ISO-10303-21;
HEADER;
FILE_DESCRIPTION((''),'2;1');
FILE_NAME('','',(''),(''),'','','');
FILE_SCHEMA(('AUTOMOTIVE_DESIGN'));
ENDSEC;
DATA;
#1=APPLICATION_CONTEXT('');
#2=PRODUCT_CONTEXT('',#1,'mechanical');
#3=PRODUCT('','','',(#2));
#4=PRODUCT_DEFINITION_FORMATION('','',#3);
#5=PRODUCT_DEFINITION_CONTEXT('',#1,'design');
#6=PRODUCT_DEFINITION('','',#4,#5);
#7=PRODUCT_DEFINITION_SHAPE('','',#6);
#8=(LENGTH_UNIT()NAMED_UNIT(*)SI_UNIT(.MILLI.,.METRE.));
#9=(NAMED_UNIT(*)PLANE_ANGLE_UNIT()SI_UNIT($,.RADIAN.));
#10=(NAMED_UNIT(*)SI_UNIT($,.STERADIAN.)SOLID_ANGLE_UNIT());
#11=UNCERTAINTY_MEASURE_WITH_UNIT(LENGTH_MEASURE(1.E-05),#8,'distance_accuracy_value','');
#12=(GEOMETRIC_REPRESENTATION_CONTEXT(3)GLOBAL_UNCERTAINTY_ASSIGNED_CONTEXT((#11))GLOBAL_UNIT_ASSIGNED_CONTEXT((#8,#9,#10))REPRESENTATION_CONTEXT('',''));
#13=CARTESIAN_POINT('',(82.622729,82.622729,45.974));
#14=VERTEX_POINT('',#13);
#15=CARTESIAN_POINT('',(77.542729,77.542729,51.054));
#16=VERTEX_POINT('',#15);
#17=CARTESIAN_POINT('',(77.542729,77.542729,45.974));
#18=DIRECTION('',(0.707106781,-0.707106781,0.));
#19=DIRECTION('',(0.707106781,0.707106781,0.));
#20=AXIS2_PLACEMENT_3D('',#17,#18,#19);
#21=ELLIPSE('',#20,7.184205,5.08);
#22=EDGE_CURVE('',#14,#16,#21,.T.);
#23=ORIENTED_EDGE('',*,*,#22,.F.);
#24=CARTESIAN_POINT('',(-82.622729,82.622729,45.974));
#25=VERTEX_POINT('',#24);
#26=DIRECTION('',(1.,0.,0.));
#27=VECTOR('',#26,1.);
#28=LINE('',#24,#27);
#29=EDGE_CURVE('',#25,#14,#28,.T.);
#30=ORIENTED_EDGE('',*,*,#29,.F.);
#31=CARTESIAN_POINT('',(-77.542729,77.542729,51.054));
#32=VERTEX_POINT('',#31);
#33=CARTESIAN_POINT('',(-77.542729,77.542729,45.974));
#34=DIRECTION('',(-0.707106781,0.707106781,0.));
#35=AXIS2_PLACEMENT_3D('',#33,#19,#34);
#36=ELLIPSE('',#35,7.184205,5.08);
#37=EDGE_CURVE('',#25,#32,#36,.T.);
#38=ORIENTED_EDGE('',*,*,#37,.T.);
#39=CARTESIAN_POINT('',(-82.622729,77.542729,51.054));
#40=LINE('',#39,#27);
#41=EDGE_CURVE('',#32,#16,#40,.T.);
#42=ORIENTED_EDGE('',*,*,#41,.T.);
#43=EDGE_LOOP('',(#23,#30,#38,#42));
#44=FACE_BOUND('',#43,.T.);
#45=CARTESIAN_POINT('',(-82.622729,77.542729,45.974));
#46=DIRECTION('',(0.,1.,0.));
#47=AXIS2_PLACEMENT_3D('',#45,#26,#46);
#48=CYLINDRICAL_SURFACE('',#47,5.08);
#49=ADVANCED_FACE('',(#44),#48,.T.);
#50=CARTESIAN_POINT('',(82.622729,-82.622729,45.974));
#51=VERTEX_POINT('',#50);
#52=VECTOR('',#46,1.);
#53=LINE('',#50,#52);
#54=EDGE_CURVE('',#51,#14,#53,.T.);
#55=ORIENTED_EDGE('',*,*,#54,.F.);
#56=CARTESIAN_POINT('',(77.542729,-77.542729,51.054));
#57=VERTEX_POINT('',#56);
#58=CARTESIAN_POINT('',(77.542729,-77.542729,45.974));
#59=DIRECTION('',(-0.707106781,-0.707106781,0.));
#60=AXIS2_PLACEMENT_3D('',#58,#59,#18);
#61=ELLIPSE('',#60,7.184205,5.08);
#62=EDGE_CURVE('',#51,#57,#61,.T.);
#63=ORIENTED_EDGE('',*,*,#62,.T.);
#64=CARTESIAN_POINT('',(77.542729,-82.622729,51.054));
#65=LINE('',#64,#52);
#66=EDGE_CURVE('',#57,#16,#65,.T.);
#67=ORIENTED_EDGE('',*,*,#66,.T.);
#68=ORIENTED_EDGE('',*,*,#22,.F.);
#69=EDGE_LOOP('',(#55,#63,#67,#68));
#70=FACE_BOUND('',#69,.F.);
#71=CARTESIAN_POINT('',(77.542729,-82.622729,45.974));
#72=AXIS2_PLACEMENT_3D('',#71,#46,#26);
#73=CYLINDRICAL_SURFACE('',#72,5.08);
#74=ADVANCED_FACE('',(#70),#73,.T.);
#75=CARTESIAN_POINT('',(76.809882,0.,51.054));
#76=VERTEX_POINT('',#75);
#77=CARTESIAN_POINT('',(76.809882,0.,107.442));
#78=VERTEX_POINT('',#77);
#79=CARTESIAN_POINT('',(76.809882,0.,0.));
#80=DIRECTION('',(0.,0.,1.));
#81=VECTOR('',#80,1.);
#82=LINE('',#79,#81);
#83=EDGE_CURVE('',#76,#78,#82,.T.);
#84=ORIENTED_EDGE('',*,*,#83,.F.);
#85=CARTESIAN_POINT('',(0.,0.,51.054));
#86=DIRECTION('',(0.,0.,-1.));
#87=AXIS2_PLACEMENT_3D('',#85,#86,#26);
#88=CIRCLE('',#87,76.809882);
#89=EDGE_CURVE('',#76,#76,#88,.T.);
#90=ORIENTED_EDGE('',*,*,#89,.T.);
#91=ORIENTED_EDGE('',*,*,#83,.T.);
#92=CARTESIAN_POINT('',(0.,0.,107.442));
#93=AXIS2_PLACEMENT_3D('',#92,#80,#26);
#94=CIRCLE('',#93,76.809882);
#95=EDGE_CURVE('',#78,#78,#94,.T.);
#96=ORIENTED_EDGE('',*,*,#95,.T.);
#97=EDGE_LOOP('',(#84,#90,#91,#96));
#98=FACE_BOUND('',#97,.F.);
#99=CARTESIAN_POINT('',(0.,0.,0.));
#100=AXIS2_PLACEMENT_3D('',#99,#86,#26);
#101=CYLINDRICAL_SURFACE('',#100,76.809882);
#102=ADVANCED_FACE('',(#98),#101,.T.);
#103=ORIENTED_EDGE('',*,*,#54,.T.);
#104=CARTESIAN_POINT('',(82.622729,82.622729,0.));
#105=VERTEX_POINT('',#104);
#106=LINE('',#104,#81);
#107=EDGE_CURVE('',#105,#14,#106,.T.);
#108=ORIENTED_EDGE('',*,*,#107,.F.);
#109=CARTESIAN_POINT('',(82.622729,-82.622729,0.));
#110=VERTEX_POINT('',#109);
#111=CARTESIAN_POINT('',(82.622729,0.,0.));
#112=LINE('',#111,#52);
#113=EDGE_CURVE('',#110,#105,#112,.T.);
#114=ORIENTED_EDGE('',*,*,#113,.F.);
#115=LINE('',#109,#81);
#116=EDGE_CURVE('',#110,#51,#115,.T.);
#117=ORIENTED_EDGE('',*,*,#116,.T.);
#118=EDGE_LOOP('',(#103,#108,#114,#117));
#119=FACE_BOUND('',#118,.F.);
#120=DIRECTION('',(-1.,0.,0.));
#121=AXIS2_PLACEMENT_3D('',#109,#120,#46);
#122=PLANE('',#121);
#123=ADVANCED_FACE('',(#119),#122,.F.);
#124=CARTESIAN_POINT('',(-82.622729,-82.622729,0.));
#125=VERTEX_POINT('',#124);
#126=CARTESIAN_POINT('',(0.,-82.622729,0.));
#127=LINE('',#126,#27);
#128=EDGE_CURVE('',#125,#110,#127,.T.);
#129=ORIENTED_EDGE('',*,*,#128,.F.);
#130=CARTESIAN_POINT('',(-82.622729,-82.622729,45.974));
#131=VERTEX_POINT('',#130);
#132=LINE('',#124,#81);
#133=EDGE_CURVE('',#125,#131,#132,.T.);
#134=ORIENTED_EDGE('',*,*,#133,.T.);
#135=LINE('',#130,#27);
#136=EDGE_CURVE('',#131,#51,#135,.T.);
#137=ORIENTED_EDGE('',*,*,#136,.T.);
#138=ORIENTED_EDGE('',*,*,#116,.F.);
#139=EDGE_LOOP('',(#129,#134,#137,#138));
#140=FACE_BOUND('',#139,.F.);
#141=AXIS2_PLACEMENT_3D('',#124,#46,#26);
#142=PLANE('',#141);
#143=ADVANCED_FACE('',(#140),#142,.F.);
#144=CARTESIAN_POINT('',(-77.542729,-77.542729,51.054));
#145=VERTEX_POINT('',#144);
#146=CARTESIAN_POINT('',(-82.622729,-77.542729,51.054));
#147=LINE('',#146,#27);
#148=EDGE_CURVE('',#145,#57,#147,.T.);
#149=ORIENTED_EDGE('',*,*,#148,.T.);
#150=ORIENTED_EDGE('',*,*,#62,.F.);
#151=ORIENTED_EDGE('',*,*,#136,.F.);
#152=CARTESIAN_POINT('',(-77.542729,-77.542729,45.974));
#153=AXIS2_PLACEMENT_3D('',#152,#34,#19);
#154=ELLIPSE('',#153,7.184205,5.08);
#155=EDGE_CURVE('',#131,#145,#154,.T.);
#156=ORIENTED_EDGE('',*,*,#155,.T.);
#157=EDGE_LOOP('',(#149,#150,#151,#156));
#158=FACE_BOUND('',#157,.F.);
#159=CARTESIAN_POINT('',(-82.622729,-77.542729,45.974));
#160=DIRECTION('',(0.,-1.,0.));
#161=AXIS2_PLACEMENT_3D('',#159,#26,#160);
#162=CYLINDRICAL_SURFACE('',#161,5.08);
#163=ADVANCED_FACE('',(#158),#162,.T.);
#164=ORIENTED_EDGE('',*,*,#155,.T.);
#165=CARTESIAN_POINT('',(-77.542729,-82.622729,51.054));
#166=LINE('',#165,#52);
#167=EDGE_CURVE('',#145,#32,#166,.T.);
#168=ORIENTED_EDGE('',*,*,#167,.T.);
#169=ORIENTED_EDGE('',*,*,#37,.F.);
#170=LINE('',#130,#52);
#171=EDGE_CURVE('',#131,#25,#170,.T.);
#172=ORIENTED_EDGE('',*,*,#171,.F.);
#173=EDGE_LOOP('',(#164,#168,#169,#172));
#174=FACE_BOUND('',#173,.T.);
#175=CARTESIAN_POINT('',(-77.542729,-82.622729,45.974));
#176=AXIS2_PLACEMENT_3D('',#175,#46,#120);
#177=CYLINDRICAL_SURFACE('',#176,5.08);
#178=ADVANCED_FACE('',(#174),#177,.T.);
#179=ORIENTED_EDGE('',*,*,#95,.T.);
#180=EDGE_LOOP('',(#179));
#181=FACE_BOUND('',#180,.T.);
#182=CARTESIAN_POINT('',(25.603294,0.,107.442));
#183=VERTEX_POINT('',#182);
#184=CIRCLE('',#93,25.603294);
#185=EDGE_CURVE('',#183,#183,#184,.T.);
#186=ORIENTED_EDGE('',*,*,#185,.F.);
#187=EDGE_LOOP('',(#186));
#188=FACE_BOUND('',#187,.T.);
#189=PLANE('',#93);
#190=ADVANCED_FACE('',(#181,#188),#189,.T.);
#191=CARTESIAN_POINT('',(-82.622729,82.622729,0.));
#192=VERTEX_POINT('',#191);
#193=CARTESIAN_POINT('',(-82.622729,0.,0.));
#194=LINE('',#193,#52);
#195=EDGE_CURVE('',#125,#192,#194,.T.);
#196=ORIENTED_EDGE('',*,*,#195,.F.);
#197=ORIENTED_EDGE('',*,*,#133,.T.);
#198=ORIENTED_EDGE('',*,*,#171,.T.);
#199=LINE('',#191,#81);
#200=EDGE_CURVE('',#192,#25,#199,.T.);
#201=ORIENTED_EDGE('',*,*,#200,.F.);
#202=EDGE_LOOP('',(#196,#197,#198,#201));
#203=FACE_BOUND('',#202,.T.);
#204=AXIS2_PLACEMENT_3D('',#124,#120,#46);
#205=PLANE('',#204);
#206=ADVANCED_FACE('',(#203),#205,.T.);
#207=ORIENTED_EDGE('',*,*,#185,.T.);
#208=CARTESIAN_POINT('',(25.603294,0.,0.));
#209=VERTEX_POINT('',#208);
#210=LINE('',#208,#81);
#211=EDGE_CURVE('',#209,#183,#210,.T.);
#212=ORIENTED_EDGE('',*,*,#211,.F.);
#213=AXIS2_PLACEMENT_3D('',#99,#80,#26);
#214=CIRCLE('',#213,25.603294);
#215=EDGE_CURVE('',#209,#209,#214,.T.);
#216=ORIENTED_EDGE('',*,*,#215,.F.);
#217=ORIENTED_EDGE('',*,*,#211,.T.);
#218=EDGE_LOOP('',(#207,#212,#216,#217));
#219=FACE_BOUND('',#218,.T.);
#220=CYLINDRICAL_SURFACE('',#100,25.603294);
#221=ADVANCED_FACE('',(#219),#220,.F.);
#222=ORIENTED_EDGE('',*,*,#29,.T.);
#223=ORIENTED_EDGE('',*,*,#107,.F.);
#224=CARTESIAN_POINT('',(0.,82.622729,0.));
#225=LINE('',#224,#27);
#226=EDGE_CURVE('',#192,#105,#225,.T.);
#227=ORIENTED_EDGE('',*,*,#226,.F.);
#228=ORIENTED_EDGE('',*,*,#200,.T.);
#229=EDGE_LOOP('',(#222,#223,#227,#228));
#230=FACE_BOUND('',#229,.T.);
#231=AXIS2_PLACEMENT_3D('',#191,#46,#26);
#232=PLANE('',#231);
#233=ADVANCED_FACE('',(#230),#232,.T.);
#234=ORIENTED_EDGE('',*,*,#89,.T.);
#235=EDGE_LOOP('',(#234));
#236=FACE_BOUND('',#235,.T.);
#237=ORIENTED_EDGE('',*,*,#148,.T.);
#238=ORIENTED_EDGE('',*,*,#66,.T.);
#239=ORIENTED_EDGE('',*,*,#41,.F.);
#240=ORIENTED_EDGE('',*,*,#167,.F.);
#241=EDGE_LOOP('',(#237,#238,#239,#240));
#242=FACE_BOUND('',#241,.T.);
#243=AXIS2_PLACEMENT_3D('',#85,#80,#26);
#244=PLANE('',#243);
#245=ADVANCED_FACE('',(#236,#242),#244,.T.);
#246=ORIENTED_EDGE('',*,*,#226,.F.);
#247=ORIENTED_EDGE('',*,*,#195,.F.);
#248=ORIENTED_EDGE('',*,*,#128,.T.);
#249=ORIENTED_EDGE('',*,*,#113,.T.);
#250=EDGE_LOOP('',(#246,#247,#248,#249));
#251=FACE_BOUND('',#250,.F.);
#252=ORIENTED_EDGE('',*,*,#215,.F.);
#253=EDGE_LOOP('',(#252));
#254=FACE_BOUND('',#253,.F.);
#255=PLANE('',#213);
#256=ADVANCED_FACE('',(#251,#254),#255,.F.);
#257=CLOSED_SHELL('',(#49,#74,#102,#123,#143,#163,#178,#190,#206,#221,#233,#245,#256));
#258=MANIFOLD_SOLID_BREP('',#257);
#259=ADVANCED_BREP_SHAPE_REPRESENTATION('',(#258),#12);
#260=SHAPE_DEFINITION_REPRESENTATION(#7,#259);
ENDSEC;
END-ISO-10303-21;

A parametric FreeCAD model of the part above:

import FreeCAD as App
import Part
import Sketcher

V = App.Vector
Q = App.Units.Quantity


def edges_at(feature, points):
    """Names of the edges that pass closest to the given points."""
    edges = feature.Shape.Edges
    near = lambda p: min(range(len(edges)), key=lambda i: edges[i].distToShape(Part.Vertex(*p))[0])
    return sorted({f"Edge{near(p) + 1}" for p in points})

doc = App.newDocument("Part")
body = doc.addObject("PartDesign::Body", "Body")

sketch1 = body.newObject("Sketcher::SketchObject", "Sketch")
sketch1.AttachmentSupport = (doc.getObject("XY_Plane"), [""])
sketch1.MapMode = "FlatFace"
sketch1.addGeometry([
    Part.LineSegment(V(-83, 83, 0), V(-83, -83, 0)),
    Part.LineSegment(V(-83, -83, 0), V(83, -83, 0)),
    Part.LineSegment(V(83, -83, 0), V(83, 83, 0)),
    Part.LineSegment(V(83, 83, 0), V(-83, 83, 0)),
    Part.Circle(V(0, 0, 0), V(0, 0, 1), 26),
], False)
sketch1.addConstraint([
    Sketcher.Constraint("Coincident", 0, 2, 1, 1),
    Sketcher.Constraint("Coincident", 1, 2, 2, 1),
    Sketcher.Constraint("Coincident", 2, 2, 3, 1),
    Sketcher.Constraint("Coincident", 3, 2, 0, 1),
    Sketcher.Constraint("Vertical", 0),
    Sketcher.Constraint("Horizontal", 1),
    Sketcher.Constraint("Vertical", 2),
    Sketcher.Constraint("Horizontal", 3),
    Sketcher.Constraint("Coincident", 4, 3, -1, 1),
    Sketcher.Constraint("Symmetric", 0, 2, 2, 2, -1, 1),
    Sketcher.Constraint("Equal", 3, 0),
    Sketcher.Constraint("Diameter", 4, 51.206588),
    Sketcher.Constraint("DistanceX", 1, 1, 1, 2, 165.245458),
])
pad1 = body.newObject("PartDesign::Pad", "Pad")
pad1.Profile = sketch1
pad1.Length = Q("2.01 in")
doc.recompute()

fillet = body.newObject("PartDesign::Fillet", "Fillet")
fillet.Base = (pad1, edges_at(pad1, [
    (-82.623, 0, 51.054),
    (0, -82.623, 51.054),
    (82.623, 0, 51.054),
    (0, 82.623, 51.054),
]))
fillet.Radius = Q("0.2 in")

sketch2 = body.newObject("Sketcher::SketchObject", "Sketch001")
sketch2.AttachmentSupport = (doc.getObject("XY_Plane"), [""])
sketch2.MapMode = "FlatFace"
sketch2.addGeometry([
    Part.Circle(V(0, 0, 0), V(0, 0, 1), 77),
    Part.Circle(V(0, 0, 0), V(0, 0, 1), 26),
], False)
sketch2.addConstraint([
    Sketcher.Constraint("Coincident", 0, 3, -1, 1),
    Sketcher.Constraint("Coincident", 1, 3, -1, 1),
    Sketcher.Constraint("Diameter", 1, 51.206588),
    Sketcher.Constraint("Diameter", 0, 153.619764),
])
pad2 = body.newObject("PartDesign::Pad", "Pad001")
pad2.Profile = sketch2
pad2.Length = Q("4.23 in")

doc.recompute()
